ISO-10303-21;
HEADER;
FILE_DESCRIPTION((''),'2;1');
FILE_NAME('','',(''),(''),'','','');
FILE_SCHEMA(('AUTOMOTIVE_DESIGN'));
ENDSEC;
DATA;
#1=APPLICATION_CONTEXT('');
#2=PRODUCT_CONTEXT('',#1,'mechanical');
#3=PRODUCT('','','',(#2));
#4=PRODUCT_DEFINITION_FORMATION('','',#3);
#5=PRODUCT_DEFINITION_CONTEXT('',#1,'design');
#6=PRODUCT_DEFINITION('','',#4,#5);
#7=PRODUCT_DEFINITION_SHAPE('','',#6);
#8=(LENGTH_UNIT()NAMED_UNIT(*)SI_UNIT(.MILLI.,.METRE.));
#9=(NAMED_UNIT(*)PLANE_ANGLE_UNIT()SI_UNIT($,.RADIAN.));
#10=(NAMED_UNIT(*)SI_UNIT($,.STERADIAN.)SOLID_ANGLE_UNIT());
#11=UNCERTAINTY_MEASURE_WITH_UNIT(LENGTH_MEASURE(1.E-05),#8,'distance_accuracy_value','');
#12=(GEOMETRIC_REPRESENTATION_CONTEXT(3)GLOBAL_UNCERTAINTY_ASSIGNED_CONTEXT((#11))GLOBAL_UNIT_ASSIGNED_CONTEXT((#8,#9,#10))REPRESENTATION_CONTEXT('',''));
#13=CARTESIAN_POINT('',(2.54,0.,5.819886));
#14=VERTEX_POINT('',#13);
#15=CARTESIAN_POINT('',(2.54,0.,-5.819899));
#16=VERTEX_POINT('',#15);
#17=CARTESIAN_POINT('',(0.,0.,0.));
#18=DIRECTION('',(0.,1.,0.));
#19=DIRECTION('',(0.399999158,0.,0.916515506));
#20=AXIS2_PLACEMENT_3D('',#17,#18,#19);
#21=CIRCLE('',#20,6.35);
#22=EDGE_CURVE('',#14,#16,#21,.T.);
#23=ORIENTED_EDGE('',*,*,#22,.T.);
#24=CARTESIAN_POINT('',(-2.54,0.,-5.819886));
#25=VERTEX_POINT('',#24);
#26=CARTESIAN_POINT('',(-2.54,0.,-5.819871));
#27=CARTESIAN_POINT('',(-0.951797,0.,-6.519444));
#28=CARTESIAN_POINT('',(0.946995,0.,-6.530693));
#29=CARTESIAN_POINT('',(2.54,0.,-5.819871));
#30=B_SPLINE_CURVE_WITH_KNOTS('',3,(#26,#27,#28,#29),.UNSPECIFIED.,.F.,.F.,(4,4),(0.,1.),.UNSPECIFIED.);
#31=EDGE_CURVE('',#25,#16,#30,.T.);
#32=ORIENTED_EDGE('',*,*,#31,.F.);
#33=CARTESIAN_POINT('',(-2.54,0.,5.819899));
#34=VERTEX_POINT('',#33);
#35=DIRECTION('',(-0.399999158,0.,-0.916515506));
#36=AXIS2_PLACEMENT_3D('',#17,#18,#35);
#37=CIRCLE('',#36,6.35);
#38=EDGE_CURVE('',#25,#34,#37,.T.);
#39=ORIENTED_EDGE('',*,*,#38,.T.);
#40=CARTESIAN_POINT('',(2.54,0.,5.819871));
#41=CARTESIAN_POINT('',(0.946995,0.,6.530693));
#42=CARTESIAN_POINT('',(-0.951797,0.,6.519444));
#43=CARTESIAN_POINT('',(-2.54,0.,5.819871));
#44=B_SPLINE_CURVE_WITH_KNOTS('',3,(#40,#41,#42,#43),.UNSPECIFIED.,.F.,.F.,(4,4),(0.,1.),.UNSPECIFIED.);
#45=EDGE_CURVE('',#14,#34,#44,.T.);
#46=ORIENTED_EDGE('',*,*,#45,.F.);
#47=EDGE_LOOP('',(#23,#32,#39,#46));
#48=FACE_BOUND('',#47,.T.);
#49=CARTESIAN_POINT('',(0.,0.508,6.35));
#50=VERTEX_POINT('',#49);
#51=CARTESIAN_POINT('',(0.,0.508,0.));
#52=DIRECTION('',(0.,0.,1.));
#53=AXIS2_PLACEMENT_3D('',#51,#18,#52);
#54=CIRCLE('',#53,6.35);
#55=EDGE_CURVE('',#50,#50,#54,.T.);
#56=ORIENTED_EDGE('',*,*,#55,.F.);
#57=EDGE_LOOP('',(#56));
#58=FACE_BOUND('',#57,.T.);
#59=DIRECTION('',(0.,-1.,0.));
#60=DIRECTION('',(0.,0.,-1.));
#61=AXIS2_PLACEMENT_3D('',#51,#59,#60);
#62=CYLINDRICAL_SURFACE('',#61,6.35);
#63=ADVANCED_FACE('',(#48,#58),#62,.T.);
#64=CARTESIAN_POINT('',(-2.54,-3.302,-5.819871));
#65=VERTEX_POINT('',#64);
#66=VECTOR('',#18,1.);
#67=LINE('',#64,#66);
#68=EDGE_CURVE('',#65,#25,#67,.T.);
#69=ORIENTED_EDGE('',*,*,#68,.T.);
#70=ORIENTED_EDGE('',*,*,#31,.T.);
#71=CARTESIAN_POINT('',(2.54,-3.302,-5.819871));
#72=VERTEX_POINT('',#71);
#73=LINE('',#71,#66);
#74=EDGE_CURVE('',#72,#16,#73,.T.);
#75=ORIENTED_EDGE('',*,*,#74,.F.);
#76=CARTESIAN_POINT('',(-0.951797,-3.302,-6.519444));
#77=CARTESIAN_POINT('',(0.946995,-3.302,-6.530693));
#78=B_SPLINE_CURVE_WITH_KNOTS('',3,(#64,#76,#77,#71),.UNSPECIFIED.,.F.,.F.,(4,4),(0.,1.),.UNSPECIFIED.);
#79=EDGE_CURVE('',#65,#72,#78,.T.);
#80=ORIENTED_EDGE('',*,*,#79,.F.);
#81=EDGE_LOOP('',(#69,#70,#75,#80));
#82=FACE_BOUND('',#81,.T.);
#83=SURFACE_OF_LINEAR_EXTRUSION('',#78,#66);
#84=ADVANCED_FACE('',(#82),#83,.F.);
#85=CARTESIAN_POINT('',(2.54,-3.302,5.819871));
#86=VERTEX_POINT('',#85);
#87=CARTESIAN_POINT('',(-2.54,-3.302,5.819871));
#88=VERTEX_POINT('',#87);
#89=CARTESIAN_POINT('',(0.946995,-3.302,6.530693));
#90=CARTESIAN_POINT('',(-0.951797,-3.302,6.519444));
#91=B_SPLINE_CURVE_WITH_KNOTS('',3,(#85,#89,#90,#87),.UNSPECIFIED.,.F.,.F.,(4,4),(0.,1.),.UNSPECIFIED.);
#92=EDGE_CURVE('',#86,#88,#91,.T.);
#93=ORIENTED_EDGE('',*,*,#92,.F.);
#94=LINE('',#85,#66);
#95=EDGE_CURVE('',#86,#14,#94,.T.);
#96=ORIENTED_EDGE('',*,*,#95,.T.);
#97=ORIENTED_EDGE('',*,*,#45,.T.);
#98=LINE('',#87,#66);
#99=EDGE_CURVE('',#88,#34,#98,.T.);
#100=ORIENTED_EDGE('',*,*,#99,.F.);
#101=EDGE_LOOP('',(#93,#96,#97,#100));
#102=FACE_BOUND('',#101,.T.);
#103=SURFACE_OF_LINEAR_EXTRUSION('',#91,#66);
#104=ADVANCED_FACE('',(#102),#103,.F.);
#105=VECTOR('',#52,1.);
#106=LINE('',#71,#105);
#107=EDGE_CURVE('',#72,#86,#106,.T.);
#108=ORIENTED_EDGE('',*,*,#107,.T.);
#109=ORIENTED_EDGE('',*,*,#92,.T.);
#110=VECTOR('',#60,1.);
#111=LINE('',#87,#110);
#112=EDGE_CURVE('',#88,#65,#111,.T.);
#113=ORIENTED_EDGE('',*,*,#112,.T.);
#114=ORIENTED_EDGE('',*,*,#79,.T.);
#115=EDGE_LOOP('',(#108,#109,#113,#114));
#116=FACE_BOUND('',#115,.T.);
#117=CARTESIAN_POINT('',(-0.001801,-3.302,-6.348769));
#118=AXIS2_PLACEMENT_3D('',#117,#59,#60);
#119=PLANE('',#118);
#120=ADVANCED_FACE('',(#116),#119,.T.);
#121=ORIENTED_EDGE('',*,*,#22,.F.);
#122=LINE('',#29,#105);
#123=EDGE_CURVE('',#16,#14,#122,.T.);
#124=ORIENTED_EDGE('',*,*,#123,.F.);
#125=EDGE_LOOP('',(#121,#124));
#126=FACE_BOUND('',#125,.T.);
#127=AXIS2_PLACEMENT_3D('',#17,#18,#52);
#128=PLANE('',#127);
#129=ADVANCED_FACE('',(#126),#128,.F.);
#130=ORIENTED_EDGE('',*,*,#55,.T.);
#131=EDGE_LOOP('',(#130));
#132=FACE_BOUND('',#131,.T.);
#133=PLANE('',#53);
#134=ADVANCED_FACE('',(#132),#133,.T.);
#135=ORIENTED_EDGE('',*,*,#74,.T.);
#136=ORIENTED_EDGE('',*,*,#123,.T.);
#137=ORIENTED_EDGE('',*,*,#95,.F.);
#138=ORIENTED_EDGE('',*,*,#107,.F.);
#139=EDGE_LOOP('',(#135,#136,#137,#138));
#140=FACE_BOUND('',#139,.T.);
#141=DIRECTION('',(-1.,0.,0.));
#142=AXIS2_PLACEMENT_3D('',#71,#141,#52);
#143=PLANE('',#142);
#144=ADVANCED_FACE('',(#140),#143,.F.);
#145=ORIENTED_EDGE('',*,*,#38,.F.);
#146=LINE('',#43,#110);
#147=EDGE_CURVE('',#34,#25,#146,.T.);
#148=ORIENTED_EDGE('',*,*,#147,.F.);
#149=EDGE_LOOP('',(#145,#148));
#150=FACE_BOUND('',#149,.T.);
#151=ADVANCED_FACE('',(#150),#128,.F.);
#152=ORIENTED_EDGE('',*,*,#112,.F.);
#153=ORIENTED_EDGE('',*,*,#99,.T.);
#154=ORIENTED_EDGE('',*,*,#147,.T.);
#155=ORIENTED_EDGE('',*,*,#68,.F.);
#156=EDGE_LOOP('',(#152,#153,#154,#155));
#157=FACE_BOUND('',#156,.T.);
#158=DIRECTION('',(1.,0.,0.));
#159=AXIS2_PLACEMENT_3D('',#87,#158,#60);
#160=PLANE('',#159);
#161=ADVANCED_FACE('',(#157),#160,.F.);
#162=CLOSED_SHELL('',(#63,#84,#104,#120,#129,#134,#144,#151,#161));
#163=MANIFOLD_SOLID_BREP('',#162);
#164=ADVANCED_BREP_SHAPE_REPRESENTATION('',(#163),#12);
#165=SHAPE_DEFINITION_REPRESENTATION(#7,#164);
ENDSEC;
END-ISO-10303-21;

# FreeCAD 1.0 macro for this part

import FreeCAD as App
import Part
import Sketcher
from FreeCAD import Vector
Q = App.Units.Quantity

doc = App.newDocument("Part")
body = doc.addObject("PartDesign::Body", "Body")

sketch1 = doc.addObject("Sketcher::SketchObject", "Sketch")
body.addObject(sketch1)
sketch1.AttachmentSupport = (doc.XZ_Plane, [""])
sketch1.MapMode = "FlatFace"
sketch1.addGeometry(Part.Circle(Vector(0, 0, 0), Vector(0, 0, 1), 6.35), False)
sketch1.addConstraint([
    Sketcher.Constraint("Coincident", 0, 3, -1, 1),
    Sketcher.Constraint("Diameter", 0, Q("0.5 in")),
])
pad1 = doc.addObject("PartDesign::Pad", "Pad")
body.addObject(pad1)
pad1.Profile = sketch1
pad1.Length = Q("0.02 in")
pad1.Reversed = True

sketch2 = doc.addObject("Sketcher::SketchObject", "Sketch001")
body.addObject(sketch2)
sketch2.AttachmentSupport = (doc.XZ_Plane, [""])
sketch2.MapMode = "FlatFace"
sketch2.addGeometry([
    Part.LineSegment(Vector(2.54, -5.819871, 0), Vector(2.54, 5.819871, 0)),
    Part.BSplineCurve([Vector(2.54, 5.819871, 0), Vector(0.946995, 6.530693, 0), Vector(-0.951797, 6.519444, 0), Vector(-2.54, 5.819871, 0)], [4, 4], [0, 1], False, 3, [1, 1, 1, 1], False),
    Part.LineSegment(Vector(-2.54, 5.819871, 0), Vector(-2.54, -5.819871, 0)),
    Part.BSplineCurve([Vector(2.54, -5.819871, 0), Vector(0.946995, -6.530693, 0), Vector(-0.951797, -6.519444, 0), Vector(-2.54, -5.819871, 0)], [4, 4], [0, 1], False, 3, [1, 1, 1, 1], False),
], False)
sketch2.addConstraint([
    Sketcher.Constraint("Block", 1),
    Sketcher.Constraint("Block", 3),
    Sketcher.Constraint("Coincident", 0, 2, 1, 1),
    Sketcher.Constraint("Coincident", 1, 2, 2, 1),
    Sketcher.Constraint("Coincident", 2, 2, 3, 2),
    Sketcher.Constraint("Coincident", 3, 1, 0, 1),
])
pad2 = doc.addObject("PartDesign::Pad", "Pad001")
body.addObject(pad2)
pad2.Profile = sketch2
pad2.Length = Q("0.13 in")

doc.recompute()
